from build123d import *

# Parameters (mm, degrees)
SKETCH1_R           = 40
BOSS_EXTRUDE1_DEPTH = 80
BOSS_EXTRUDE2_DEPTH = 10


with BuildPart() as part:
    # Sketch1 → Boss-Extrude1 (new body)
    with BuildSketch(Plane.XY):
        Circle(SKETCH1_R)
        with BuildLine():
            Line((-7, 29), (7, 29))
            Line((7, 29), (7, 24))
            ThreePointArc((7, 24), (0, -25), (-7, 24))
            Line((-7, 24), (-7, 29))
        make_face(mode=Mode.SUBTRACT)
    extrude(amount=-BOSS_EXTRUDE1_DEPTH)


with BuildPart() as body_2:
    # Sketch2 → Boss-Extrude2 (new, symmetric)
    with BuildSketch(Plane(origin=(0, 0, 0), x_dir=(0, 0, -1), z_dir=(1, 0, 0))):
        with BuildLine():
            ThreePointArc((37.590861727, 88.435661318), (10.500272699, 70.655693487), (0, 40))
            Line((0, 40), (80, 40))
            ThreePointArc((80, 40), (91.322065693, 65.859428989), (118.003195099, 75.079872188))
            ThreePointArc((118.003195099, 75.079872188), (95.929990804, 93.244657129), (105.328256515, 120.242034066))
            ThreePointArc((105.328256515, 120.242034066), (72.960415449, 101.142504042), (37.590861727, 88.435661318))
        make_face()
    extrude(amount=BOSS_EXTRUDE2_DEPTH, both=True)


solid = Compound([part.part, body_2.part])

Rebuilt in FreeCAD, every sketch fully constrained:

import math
import FreeCAD as App
import Part
import Sketcher
Q = App.Units.Quantity

doc = App.newDocument("Part")
body = doc.addObject("PartDesign::Body", "Body")

sketch1 = body.newObject("Sketcher::SketchObject", "Sketch")
sketch1.AttachmentSupport = (doc.getObject("XY_Plane"), [""])
sketch1.MapMode = "FlatFace"
sketch1.addGeometry(Part.Circle(App.Vector(0, 0, 0), App.Vector(0, 0, 1), 40), False)
sketch1.addGeometry(Part.LineSegment(App.Vector(-7, 24, 0), App.Vector(-7, 29, 0)), False)
sketch1.addGeometry(Part.LineSegment(App.Vector(-7, 29, 0), App.Vector(7, 29, 0)), False)
sketch1.addGeometry(Part.LineSegment(App.Vector(7, 29, 0), App.Vector(7, 24, 0)), False)
sketch1.addGeometry(Part.ArcOfCircle(Part.Circle(App.Vector(0, 0, 0), App.Vector(0, 0, 1), 25), math.radians(106.260205), math.radians(433.739795)), False)
sketch1.addConstraint(Sketcher.Constraint("Coincident", 1, 2, 2, 1))
sketch1.addConstraint(Sketcher.Constraint("Coincident", 2, 2, 3, 1))
sketch1.addConstraint(Sketcher.Constraint("Coincident", 3, 2, 4, 2))
sketch1.addConstraint(Sketcher.Constraint("Coincident", 4, 1, 1, 1))
sketch1.addConstraint(Sketcher.Constraint("Vertical", 1))
sketch1.addConstraint(Sketcher.Constraint("Horizontal", 2))
sketch1.addConstraint(Sketcher.Constraint("Vertical", 3))
sketch1.addConstraint(Sketcher.Constraint("Coincident", 0, 3, -1, 1))
sketch1.addConstraint(Sketcher.Constraint("Coincident", 4, 3, -1, 1))
sketch1.addConstraint(Sketcher.Constraint("Horizontal", 3, 2, 4, 1))
sketch1.addConstraint(Sketcher.Constraint("Diameter", 0, Q("80 mm")))
sketch1.addConstraint(Sketcher.Constraint("Radius", 4, Q("25 mm")))
sketch1.addConstraint(Sketcher.Constraint("DistanceX", 2, 1, 2, 2, Q("14 mm")))
sketch1.addConstraint(Sketcher.Constraint("DistanceY", 1, 1, 1, 2, Q("5 mm")))
pad1 = body.newObject("PartDesign::Pad", "Pad")
pad1.Profile = sketch1
pad1.Length = 80
pad1.Reversed = True
body2 = doc.addObject("PartDesign::Body", "Body001")

sketch2 = body2.newObject("Sketcher::SketchObject", "Sketch001")
sketch2.AttachmentSupport = (doc.getObject("YZ_Plane001"), [""])
sketch2.MapMode = "FlatFace"
sketch2.addGeometry(Part.ArcOfCircle(Part.Circle(App.Vector(40, -50, 0), App.Vector(0, 0, 1), 50), math.radians(14.370004), math.radians(90)), False)
sketch2.addGeometry(Part.LineSegment(App.Vector(40, 0, 0), App.Vector(40, -80, 0)), False)
sketch2.addGeometry(Part.ArcOfCircle(Part.Circle(App.Vector(40, -115.192308, 0), App.Vector(0, 0, 1), 35.192308), math.radians(-4.58122), math.radians(90)), False)
sketch2.addGeometry(Part.ArcOfCircle(Part.Circle(App.Vector(100, -120, 0), App.Vector(0, 0, 1), 25), math.radians(35.935189), math.radians(175.41878)), False)
sketch2.addGeometry(Part.ArcOfCircle(Part.Circle(App.Vector(282.178307, 12.045691, 0), App.Vector(0, 0, 1), 200), math.radians(-165.629996), math.radians(-144.064811)), False)
sketch2.addConstraint(Sketcher.Constraint("Coincident", 0, 2, 1, 1))
sketch2.addConstraint(Sketcher.Constraint("Coincident", 1, 2, 2, 2))
sketch2.addConstraint(Sketcher.Constraint("Tangent", 2, 1, 3, 2))
sketch2.addConstraint(Sketcher.Constraint("Tangent", 3, 1, 4, 2))
sketch2.addConstraint(Sketcher.Constraint("Tangent", 4, 1, 0, 1))
sketch2.addConstraint(Sketcher.Constraint("Vertical", 1))
sketch2.addConstraint(Sketcher.Constraint("PointOnObject", 0, 2, -1))
sketch2.addConstraint(Sketcher.Constraint("Vertical", 0, 3, 2, 3))
sketch2.addConstraint(Sketcher.Constraint("Vertical", 2, 3, 0, 2))
sketch2.addConstraint(Sketcher.Constraint("Radius", 0, Q("50 mm")))
sketch2.addConstraint(Sketcher.Constraint("Radius", 3, Q("25 mm")))
sketch2.addConstraint(Sketcher.Constraint("Radius", 4, Q("200 mm")))
sketch2.addConstraint(Sketcher.Constraint("DistanceY", 1, 2, 1, 1, Q("80 mm")))
sketch2.addConstraint(Sketcher.Constraint("DistanceX", -1, 1, 0, 3, Q("40 mm")))
sketch2.addConstraint(Sketcher.Constraint("DistanceX", -1, 1, 3, 3, Q("100 mm")))
sketch2.addConstraint(Sketcher.Constraint("DistanceY", 3, 3, -1, 1, Q("120 mm")))
pad2 = body2.newObject("PartDesign::Pad", "Pad001")
pad2.Profile = sketch2
pad2.Length = 20
pad2.Midplane = True

doc.recompute()
